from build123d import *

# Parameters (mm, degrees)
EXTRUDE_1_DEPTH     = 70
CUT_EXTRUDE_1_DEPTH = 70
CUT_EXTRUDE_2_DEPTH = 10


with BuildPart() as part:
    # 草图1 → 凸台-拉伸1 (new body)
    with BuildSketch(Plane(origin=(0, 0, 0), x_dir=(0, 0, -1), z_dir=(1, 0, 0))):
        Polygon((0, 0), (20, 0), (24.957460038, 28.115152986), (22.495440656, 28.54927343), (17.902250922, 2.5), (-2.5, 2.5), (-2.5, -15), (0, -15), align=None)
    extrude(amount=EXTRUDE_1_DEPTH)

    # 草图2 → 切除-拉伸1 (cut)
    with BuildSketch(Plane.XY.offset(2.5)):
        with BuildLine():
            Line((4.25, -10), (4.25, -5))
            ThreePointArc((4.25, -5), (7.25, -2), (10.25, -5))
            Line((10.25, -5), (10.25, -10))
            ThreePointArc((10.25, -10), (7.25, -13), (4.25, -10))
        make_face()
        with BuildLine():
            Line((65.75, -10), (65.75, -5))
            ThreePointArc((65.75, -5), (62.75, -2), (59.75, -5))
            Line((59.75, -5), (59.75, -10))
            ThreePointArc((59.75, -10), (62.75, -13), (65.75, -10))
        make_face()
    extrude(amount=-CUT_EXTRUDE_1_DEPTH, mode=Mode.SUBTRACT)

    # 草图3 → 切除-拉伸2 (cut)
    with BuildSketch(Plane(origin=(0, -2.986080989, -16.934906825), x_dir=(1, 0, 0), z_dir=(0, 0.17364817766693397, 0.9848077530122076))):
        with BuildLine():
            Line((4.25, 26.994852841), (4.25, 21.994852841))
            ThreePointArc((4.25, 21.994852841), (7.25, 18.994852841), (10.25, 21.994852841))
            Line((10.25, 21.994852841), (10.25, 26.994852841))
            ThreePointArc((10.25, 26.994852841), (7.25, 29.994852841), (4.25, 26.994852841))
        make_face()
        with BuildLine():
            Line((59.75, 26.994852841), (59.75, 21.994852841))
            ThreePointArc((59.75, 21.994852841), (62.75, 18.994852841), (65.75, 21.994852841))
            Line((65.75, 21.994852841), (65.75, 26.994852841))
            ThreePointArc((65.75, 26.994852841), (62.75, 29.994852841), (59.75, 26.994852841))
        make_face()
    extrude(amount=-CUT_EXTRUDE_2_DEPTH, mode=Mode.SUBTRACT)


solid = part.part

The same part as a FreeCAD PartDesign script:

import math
import FreeCAD as App
import Part
import Sketcher
Q = App.Units.Quantity

doc = App.newDocument("Part")
params = doc.addObject("Spreadsheet::Sheet", "Params")
for row, (alias, value) in enumerate([
    ("sketch1_width", "15 mm"),
    ("sketch1_height", "20 mm"),
    ("sketch1_width2", "17.5 mm"),
    ("sketch1_height2", "2.5 mm"),
    ("sketch1_length", "2.5 mm"),
    ("pad1_length", "70 mm"),
    ("sketch2_radius", "3 mm"),
    ("sketch2_height", "5 mm"),
    ("pocket1_length", "70 mm"),
    ("sketch3_radius", "3 mm"),
    ("sketch3_height", "5 mm"),
    ("pocket2_length", "10 mm"),
], start=1):
    params.set(f"A{row}", alias)
    params.set(f"B{row}", "=" + value)
    params.setAlias(f"B{row}", alias)

body = doc.addObject("PartDesign::Body", "Body")

# Sketch on YZ plane
sketch1 = body.newObject("Sketcher::SketchObject", "Sketch")
sketch1.AttachmentSupport = (doc.getObject("YZ_Plane"), [""])
sketch1.MapMode = "FlatFace"
sketch1.addGeometry(Part.LineSegment(App.Vector(0, 0, 0), App.Vector(0, -20, 0)), False)
sketch1.addGeometry(Part.LineSegment(App.Vector(0, -20, 0), App.Vector(28.1, -25, 0)), False)
sketch1.addGeometry(Part.LineSegment(App.Vector(28.1, -25, 0), App.Vector(28.5, -22.5, 0)), False)
sketch1.addGeometry(Part.LineSegment(App.Vector(28.5, -22.5, 0), App.Vector(2.5, -17.9, 0)), False)
sketch1.addGeometry(Part.LineSegment(App.Vector(2.5, -17.9, 0), App.Vector(2.5, 2.5, 0)), False)
sketch1.addGeometry(Part.LineSegment(App.Vector(2.5, 2.5, 0), App.Vector(-15, 2.5, 0)), False)
sketch1.addGeometry(Part.LineSegment(App.Vector(-15, 2.5, 0), App.Vector(-15, 0, 0)), False)
sketch1.addGeometry(Part.LineSegment(App.Vector(-15, 0, 0), App.Vector(0, 0, 0)), False)
sketch1.addConstraint(Sketcher.Constraint("Coincident", 0, 2, 1, 1))
sketch1.addConstraint(Sketcher.Constraint("Coincident", 1, 2, 2, 1))
sketch1.addConstraint(Sketcher.Constraint("Coincident", 2, 2, 3, 1))
sketch1.addConstraint(Sketcher.Constraint("Coincident", 3, 2, 4, 1))
sketch1.addConstraint(Sketcher.Constraint("Coincident", 4, 2, 5, 1))
sketch1.addConstraint(Sketcher.Constraint("Coincident", 5, 2, 6, 1))
sketch1.addConstraint(Sketcher.Constraint("Coincident", 6, 2, 7, 1))
sketch1.addConstraint(Sketcher.Constraint("Coincident", 7, 2, 0, 1))
sketch1.addConstraint(Sketcher.Constraint("Vertical", 0))
sketch1.addConstraint(Sketcher.Constraint("Vertical", 4))
sketch1.addConstraint(Sketcher.Constraint("Horizontal", 5))
sketch1.addConstraint(Sketcher.Constraint("Vertical", 6))
sketch1.addConstraint(Sketcher.Constraint("Horizontal", 7))
sketch1.addConstraint(Sketcher.Constraint("Coincident", 7, 2, -1, 1))
sketch1.addConstraint(Sketcher.Constraint("Perpendicular", 1, 2))
sketch1.addConstraint(Sketcher.Constraint("Perpendicular", 2, 3))
sketch1.addConstraint(Sketcher.Constraint("DistanceX", 7, 1, 7, 2, Q("15 mm")))
sketch1.addConstraint(Sketcher.Constraint("DistanceY", 0, 2, 0, 1, Q("20 mm")))
sketch1.addConstraint(Sketcher.Constraint("Angle", 1, Q("-10 deg")))
sketch1.addConstraint(Sketcher.Constraint("DistanceX", 5, 2, 5, 1, Q("17.5 mm")))
sketch1.addConstraint(Sketcher.Constraint("DistanceY", 6, 2, 6, 1, Q("2.5 mm")))
sketch1.addConstraint(Sketcher.Constraint("Distance", 2, Q("2.5 mm")))
sketch1.addConstraint(Sketcher.Constraint("DistanceY", 1, 2, -1, 1, Q("24.95746 mm")))
sketch1.setExpression("Constraints[16]", "Params.sketch1_width")
sketch1.setExpression("Constraints[17]", "Params.sketch1_height")
sketch1.setExpression("Constraints[19]", "Params.sketch1_width2")
sketch1.setExpression("Constraints[20]", "Params.sketch1_height2")
sketch1.setExpression("Constraints[21]", "Params.sketch1_length")
pad1 = body.newObject("PartDesign::Pad", "Pad")
pad1.Profile = sketch1
pad1.setExpression("Length", "Params.pad1_length")

# Sketch on XY plane
sketch2 = body.newObject("Sketcher::SketchObject", "Sketch001")
sketch2.AttachmentSupport = (doc.getObject("XY_Plane"), [""])
sketch2.MapMode = "FlatFace"
sketch2.AttachmentOffset = App.Placement(App.Vector(0, 0, 2.5), App.Rotation())
sketch2.addGeometry(Part.LineSegment(App.Vector(4.2, -5, 0), App.Vector(4.2, -10, 0)), False)
sketch2.addGeometry(Part.ArcOfCircle(Part.Circle(App.Vector(7.2, -10, 0), App.Vector(0, 0, 1), 3), math.radians(180), math.radians(360)), False)
sketch2.addGeometry(Part.LineSegment(App.Vector(10.2, -10, 0), App.Vector(10.2, -5, 0)), False)
sketch2.addGeometry(Part.ArcOfCircle(Part.Circle(App.Vector(7.2, -5, 0), App.Vector(0, 0, 1), 3), math.radians(0), math.radians(180)), False)
sketch2.addGeometry(Part.LineSegment(App.Vector(65.8, -10, 0), App.Vector(65.8, -5, 0)), False)
sketch2.addGeometry(Part.ArcOfCircle(Part.Circle(App.Vector(62.8, -5, 0), App.Vector(0, 0, 1), 3), math.radians(0), math.radians(180)), False)
sketch2.addGeometry(Part.LineSegment(App.Vector(59.8, -5, 0), App.Vector(59.8, -10, 0)), False)
sketch2.addGeometry(Part.ArcOfCircle(Part.Circle(App.Vector(62.8, -10, 0), App.Vector(0, 0, 1), 3), math.radians(180), math.radians(360)), False)
sketch2.addConstraint(Sketcher.Constraint("Tangent", 0, 2, 1, 1))
sketch2.addConstraint(Sketcher.Constraint("Tangent", 1, 2, 2, 1))
sketch2.addConstraint(Sketcher.Constraint("Tangent", 2, 2, 3, 1))
sketch2.addConstraint(Sketcher.Constraint("Tangent", 3, 2, 0, 1))
sketch2.addConstraint(Sketcher.Constraint("Tangent", 4, 2, 5, 1))
sketch2.addConstraint(Sketcher.Constraint("Tangent", 5, 2, 6, 1))
sketch2.addConstraint(Sketcher.Constraint("Tangent", 6, 2, 7, 1))
sketch2.addConstraint(Sketcher.Constraint("Tangent", 7, 2, 4, 1))
sketch2.addConstraint(Sketcher.Constraint("Vertical", 0))
sketch2.addConstraint(Sketcher.Constraint("Vertical", 2))
sketch2.addConstraint(Sketcher.Constraint("Vertical", 4))
sketch2.addConstraint(Sketcher.Constraint("Vertical", 6))
sketch2.addConstraint(Sketcher.Constraint("Equal", 3, 5))
sketch2.addConstraint(Sketcher.Constraint("Horizontal", 3, 3, 5, 3))
sketch2.addConstraint(Sketcher.Constraint("Horizontal", 1, 3, 7, 3))
sketch2.addConstraint(Sketcher.Constraint("Radius", 1, Q("3 mm")))
sketch2.addConstraint(Sketcher.Constraint("DistanceY", 0, 2, 0, 1, Q("5 mm")))
sketch2.addConstraint(Sketcher.Constraint("DistanceY", 1, 3, -1, 1, Q("10 mm")))
sketch2.addConstraint(Sketcher.Constraint("DistanceX", 3, 3, 5, 3, Q("55.5 mm")))
sketch2.addConstraint(Sketcher.Constraint("DistanceX", -1, 1, 1, 3, Q("7.25 mm")))
sketch2.setExpression("Constraints[15]", "Params.sketch2_radius")
sketch2.setExpression("Constraints[16]", "Params.sketch2_height")
pocket1 = body.newObject("PartDesign::Pocket", "Pocket")
pocket1.Profile = sketch2
pocket1.setExpression("Length", "Params.pocket1_length")

# Sketch on an angled plane
sketch3 = body.newObject("Sketcher::SketchObject", "Sketch002")
sketch3.Placement = App.Placement(App.Vector(0, -2.986081, -16.934907), App.Rotation(App.Vector(1, 0, 0), App.Vector(0, 0.984807753, -0.173648178), App.Vector(0, 0.173648178, 0.984807753), "ZXY"))
sketch3.addGeometry(Part.LineSegment(App.Vector(4.2, 27, 0), App.Vector(4.2, 22, 0)), False)
sketch3.addGeometry(Part.ArcOfCircle(Part.Circle(App.Vector(7.2, 22, 0), App.Vector(0, 0, 1), 3), math.radians(180), math.radians(360)), False)
sketch3.addGeometry(Part.LineSegment(App.Vector(10.2, 22, 0), App.Vector(10.2, 27, 0)), False)
sketch3.addGeometry(Part.ArcOfCircle(Part.Circle(App.Vector(7.2, 27, 0), App.Vector(0, 0, 1), 3), math.radians(0), math.radians(180)), False)
sketch3.addGeometry(Part.LineSegment(App.Vector(59.8, 27, 0), App.Vector(59.8, 22, 0)), False)
sketch3.addGeometry(Part.ArcOfCircle(Part.Circle(App.Vector(62.8, 22, 0), App.Vector(0, 0, 1), 3), math.radians(180), math.radians(360)), False)
sketch3.addGeometry(Part.LineSegment(App.Vector(65.8, 22, 0), App.Vector(65.8, 27, 0)), False)
sketch3.addGeometry(Part.ArcOfCircle(Part.Circle(App.Vector(62.8, 27, 0), App.Vector(0, 0, 1), 3), math.radians(0), math.radians(180)), False)
sketch3.addConstraint(Sketcher.Constraint("Tangent", 0, 2, 1, 1))
sketch3.addConstraint(Sketcher.Constraint("Tangent", 1, 2, 2, 1))
sketch3.addConstraint(Sketcher.Constraint("Tangent", 2, 2, 3, 1))
sketch3.addConstraint(Sketcher.Constraint("Tangent", 3, 2, 0, 1))
sketch3.addConstraint(Sketcher.Constraint("Tangent", 4, 2, 5, 1))
sketch3.addConstraint(Sketcher.Constraint("Tangent", 5, 2, 6, 1))
sketch3.addConstraint(Sketcher.Constraint("Tangent", 6, 2, 7, 1))
sketch3.addConstraint(Sketcher.Constraint("Tangent", 7, 2, 4, 1))
sketch3.addConstraint(Sketcher.Constraint("Vertical", 0))
sketch3.addConstraint(Sketcher.Constraint("Vertical", 2))
sketch3.addConstraint(Sketcher.Constraint("Vertical", 4))
sketch3.addConstraint(Sketcher.Constraint("Vertical", 6))
sketch3.addConstraint(Sketcher.Constraint("Equal", 3, 5))
sketch3.addConstraint(Sketcher.Constraint("Horizontal", 1, 3, 5, 3))
sketch3.addConstraint(Sketcher.Constraint("Horizontal", 3, 3, 7, 3))
sketch3.addConstraint(Sketcher.Constraint("Radius", 1, Q("3 mm")))
sketch3.addConstraint(Sketcher.Constraint("DistanceY", 0, 2, 0, 1, Q("5 mm")))
sketch3.addConstraint(Sketcher.Constraint("DistanceX", 1, 3, 5, 3, Q("55.5 mm")))
sketch3.addConstraint(Sketcher.Constraint("DistanceX", -1, 1, 1, 3, Q("7.25 mm")))
sketch3.addConstraint(Sketcher.Constraint("DistanceY", -1, 1, 1, 3, Q("21.994853 mm")))
sketch3.setExpression("Constraints[15]", "Params.sketch3_radius")
sketch3.setExpression("Constraints[16]", "Params.sketch3_height")
pocket2 = body.newObject("PartDesign::Pocket", "Pocket001")
pocket2.Profile = sketch3
pocket2.setExpression("Length", "Params.pocket2_length")

doc.recompute()
